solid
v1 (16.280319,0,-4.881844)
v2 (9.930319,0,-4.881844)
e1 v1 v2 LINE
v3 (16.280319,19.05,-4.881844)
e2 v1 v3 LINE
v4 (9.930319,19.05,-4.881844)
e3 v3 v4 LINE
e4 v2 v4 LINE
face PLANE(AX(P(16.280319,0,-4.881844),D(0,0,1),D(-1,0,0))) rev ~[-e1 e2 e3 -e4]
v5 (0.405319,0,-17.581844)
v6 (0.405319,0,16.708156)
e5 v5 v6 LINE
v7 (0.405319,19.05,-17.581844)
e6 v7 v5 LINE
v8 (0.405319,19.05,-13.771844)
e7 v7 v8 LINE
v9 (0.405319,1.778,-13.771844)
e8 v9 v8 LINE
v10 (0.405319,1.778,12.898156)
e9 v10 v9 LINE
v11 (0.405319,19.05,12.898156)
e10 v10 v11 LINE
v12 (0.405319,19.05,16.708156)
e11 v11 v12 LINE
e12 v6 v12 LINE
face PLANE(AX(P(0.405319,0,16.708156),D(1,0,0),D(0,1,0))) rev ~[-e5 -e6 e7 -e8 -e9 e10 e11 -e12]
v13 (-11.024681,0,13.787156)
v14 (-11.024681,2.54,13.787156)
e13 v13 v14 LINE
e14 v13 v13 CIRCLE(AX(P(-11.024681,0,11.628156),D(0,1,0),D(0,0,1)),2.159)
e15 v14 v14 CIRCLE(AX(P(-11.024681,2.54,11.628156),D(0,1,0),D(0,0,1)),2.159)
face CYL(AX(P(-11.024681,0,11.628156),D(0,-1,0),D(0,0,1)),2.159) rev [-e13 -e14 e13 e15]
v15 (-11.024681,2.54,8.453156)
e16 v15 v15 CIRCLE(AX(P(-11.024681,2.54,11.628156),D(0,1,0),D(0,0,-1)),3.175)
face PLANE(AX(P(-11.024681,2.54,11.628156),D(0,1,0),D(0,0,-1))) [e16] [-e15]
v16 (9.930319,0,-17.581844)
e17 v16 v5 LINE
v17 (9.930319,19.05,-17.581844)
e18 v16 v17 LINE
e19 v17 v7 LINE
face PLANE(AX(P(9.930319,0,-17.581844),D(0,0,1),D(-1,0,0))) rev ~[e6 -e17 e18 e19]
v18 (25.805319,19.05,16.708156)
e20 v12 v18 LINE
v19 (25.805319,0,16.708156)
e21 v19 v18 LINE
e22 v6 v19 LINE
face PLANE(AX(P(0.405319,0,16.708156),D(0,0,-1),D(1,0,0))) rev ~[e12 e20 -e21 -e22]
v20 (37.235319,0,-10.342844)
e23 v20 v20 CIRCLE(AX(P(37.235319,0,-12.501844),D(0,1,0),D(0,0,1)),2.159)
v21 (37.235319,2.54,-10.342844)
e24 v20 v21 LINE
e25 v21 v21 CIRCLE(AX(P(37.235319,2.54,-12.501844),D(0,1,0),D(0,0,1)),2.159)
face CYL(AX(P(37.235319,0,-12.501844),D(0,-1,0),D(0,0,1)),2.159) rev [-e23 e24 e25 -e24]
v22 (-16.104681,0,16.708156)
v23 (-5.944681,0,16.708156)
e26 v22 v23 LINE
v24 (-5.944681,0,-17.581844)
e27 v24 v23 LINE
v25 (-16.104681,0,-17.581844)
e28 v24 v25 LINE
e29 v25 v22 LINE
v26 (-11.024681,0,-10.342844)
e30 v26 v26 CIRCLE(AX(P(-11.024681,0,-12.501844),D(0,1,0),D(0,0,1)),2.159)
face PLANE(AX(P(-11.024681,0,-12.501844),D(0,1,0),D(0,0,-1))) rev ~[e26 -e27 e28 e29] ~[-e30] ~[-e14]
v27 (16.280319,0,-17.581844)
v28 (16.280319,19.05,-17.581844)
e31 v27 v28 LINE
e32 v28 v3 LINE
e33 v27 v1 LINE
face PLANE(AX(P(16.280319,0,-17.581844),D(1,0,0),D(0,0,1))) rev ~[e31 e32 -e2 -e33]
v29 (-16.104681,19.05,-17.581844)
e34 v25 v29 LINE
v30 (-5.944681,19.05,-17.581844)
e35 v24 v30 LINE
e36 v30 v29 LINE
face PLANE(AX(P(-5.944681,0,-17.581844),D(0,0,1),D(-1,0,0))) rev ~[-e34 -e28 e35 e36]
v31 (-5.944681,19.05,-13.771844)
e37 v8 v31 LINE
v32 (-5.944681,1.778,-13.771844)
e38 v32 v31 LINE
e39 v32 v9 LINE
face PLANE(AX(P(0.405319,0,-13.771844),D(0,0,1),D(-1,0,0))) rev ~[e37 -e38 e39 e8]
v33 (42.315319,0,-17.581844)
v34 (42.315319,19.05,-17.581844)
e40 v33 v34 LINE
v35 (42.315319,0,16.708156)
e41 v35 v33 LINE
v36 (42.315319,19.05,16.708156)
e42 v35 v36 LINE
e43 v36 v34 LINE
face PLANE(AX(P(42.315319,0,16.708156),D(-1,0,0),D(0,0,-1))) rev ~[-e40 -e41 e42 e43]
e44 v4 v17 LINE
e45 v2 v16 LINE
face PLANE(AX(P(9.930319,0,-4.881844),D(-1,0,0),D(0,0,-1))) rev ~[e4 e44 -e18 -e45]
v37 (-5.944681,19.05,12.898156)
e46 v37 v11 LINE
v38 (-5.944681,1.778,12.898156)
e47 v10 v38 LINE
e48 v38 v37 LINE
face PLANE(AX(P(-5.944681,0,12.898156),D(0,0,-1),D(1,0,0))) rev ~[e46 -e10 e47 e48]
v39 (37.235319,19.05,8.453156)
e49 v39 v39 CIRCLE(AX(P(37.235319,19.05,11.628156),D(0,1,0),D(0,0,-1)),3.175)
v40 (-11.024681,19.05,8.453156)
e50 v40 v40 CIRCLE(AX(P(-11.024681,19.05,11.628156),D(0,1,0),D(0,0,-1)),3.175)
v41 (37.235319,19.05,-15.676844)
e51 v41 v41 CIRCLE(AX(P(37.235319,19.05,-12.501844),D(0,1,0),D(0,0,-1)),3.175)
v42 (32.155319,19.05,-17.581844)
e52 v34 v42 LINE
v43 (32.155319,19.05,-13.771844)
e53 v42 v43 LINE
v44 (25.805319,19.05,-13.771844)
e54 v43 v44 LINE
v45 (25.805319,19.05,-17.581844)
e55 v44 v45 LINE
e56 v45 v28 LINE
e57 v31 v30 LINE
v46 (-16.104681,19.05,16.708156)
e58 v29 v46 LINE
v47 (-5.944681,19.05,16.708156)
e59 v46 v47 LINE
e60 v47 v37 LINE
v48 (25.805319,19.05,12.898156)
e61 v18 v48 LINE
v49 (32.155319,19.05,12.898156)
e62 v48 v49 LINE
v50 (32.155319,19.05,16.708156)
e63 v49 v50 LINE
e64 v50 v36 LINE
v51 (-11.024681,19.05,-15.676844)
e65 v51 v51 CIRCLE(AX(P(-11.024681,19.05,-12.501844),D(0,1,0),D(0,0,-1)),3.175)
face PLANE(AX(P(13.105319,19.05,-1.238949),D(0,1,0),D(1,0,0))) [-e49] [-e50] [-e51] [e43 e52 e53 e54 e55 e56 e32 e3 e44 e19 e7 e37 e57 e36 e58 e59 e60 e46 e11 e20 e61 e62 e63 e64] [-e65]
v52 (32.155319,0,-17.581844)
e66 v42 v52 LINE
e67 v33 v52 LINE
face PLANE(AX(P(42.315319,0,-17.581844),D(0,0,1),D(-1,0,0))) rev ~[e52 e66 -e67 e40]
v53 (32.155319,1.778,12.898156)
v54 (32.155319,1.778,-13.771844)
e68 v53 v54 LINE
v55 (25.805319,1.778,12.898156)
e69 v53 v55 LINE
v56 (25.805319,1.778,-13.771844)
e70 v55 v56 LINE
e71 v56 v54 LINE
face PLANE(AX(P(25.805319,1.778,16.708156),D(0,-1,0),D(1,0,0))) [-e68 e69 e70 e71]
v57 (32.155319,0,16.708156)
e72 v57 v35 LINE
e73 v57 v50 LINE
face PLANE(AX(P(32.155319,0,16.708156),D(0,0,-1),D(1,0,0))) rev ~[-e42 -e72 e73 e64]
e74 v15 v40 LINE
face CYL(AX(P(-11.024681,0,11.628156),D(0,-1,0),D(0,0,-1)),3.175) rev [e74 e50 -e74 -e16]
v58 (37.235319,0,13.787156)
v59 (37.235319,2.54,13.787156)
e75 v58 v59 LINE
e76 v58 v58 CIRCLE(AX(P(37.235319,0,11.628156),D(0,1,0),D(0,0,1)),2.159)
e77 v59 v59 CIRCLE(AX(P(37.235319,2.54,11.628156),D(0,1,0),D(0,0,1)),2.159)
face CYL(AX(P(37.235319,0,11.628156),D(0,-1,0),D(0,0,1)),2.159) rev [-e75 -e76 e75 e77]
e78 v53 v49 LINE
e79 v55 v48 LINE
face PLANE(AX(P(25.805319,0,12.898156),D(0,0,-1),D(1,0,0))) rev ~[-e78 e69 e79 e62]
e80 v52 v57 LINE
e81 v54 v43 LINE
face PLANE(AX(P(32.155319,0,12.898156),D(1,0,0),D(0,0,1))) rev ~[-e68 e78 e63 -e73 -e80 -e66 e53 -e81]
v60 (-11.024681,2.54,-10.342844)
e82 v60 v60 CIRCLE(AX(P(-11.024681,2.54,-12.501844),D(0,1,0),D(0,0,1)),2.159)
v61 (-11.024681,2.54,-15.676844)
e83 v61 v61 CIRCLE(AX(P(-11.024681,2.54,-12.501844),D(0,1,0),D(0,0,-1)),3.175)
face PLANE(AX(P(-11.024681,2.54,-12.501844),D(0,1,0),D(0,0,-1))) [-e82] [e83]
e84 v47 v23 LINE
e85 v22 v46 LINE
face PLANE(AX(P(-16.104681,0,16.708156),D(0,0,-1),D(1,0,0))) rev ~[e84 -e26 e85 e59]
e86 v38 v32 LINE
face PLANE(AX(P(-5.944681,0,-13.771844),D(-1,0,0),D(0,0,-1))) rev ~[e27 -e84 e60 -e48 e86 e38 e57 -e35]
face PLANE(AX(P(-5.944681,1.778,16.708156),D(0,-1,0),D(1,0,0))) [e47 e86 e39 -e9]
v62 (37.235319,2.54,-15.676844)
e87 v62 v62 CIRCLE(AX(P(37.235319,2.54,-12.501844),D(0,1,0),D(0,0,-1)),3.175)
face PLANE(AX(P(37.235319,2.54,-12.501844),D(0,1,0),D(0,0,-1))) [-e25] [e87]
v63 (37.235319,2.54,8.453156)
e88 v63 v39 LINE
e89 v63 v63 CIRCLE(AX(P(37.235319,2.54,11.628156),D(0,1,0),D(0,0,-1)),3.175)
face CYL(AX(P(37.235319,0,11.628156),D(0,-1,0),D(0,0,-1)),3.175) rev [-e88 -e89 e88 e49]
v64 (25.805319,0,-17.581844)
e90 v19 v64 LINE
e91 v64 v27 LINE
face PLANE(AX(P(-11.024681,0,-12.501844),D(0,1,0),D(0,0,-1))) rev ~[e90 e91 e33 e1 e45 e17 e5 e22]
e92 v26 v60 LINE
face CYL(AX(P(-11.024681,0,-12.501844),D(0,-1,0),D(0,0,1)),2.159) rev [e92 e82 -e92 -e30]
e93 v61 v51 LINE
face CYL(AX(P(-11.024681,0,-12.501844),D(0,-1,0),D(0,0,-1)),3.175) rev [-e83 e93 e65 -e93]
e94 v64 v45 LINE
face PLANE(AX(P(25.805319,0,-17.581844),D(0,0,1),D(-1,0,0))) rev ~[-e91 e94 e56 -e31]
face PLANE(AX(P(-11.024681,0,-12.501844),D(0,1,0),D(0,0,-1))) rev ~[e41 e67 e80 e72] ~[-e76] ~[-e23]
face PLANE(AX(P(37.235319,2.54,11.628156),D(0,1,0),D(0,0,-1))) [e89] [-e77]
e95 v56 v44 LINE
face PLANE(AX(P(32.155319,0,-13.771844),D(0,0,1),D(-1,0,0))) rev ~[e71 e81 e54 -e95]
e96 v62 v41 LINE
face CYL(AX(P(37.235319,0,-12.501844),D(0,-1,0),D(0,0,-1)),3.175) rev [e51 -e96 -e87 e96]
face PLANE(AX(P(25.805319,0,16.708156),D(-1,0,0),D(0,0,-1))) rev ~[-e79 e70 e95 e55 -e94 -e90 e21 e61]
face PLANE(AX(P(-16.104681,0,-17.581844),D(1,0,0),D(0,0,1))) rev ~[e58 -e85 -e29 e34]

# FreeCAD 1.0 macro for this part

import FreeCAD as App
import Part
import Sketcher
from FreeCAD import Vector
Q = App.Units.Quantity


def add_polygon(sketch, points):
    """Adds a closed chain of lines whose ends are joined by coincident constraints."""
    first, n = sketch.GeometryCount, len(points)
    for a, b in zip(points, points[1:] + points[:1]):
        sketch.addGeometry(Part.LineSegment(App.Vector(*a, 0), App.Vector(*b, 0)), False)
    for i in range(n):
        sketch.addConstraint(Sketcher.Constraint("Coincident", first + i, 2, first + (i + 1) % n, 1))

doc = App.newDocument("Part")
params = doc.addObject("Spreadsheet::Sheet", "Params")
for row, (alias, value) in enumerate([
    ("sketch1_diameter", "0.25 in"),
    ("sketch1_width", "1 in"),
    ("sketch1_width2", "0.4 in"),
    ("sketch1_height", "0.5 in"),
    ("sketch1_width3", "0.25 in"),
    ("pad1_length", "0.75 in"),
    ("sketch2_diameter", "0.25 in"),
    ("sketch2_diameter2", "0.17 in"),
    ("pad2_length", "0.1 in"),
    ("sketch3_width", "0.25 in"),
    ("sketch3_height", "0.07 in"),
], start=1):
    params.set(f"A{row}", alias)
    params.set(f"B{row}", "=" + value)
    params.setAlias(f"B{row}", alias)

body = doc.addObject("PartDesign::Body", "Body")

sketch1 = doc.addObject("Sketcher::SketchObject", "Sketch")
body.addObject(sketch1)
sketch1.AttachmentSupport = (doc.XZ_Plane, [""])
sketch1.MapMode = "FlatFace"
add_polygon(sketch1, [(-5.9, -17.6), (-16.1, -17.6), (-16.1, 16.7), (-5.9, 16.7), (-5.9, 12.9), (0.4, 12.9), (0.4, 16.7), (25.8, 16.7), (25.8, 12.9), (32.2, 12.9), (32.2, 16.7), (42.3, 16.7), (42.3, -17.6), (32.2, -17.6), (32.2, -13.8), (25.8, -13.8), (25.8, -17.6), (16.3, -17.6), (16.3, -4.9), (9.9, -4.9), (9.9, -17.6), (0.4, -17.6), (0.4, -13.8), (-5.9, -13.8)])
sketch1.addGeometry(Part.Circle(Vector(-11, 11.6, 0), Vector(0, 0, 1), 3.2), False)
sketch1.addGeometry(Part.Circle(Vector(37.2, 11.6, 0), Vector(0, 0, 1), 3.2), False)
sketch1.addGeometry(Part.Circle(Vector(-11, -12.5, 0), Vector(0, 0, 1), 3.2), False)
sketch1.addGeometry(Part.Circle(Vector(37.2, -12.5, 0), Vector(0, 0, 1), 3.2), False)
sketch1.addConstraint([
    Sketcher.Constraint("Horizontal", 0),
    Sketcher.Constraint("Vertical", 1),
    Sketcher.Constraint("Horizontal", 2),
    Sketcher.Constraint("Vertical", 3),
    Sketcher.Constraint("Horizontal", 4),
    Sketcher.Constraint("Vertical", 5),
    Sketcher.Constraint("Horizontal", 6),
    Sketcher.Constraint("Vertical", 7),
    Sketcher.Constraint("Horizontal", 8),
    Sketcher.Constraint("Vertical", 9),
    Sketcher.Constraint("Horizontal", 10),
    Sketcher.Constraint("Vertical", 11),
    Sketcher.Constraint("Horizontal", 12),
    Sketcher.Constraint("Vertical", 13),
    Sketcher.Constraint("Horizontal", 14),
    Sketcher.Constraint("Vertical", 15),
    Sketcher.Constraint("Horizontal", 16),
    Sketcher.Constraint("Vertical", 17),
    Sketcher.Constraint("Horizontal", 18),
    Sketcher.Constraint("Vertical", 19),
    Sketcher.Constraint("Horizontal", 20),
    Sketcher.Constraint("Vertical", 21),
    Sketcher.Constraint("Horizontal", 22),
    Sketcher.Constraint("Vertical", 23),
    Sketcher.Constraint("Equal", 24, 25),
    Sketcher.Constraint("Equal", 25, 26),
    Sketcher.Constraint("Equal", 26, 27),
    Sketcher.Constraint("Horizontal", 24, 3, 25, 3),
    Sketcher.Constraint("Horizontal", 26, 3, 27, 3),
    Sketcher.Constraint("Horizontal", 2, 2, 5, 2),
    Sketcher.Constraint("Horizontal", 4, 2, 7, 2),
    Sketcher.Constraint("Horizontal", 6, 2, 9, 2),
    Sketcher.Constraint("Horizontal", 0, 2, 11, 2),
    Sketcher.Constraint("Horizontal", 12, 2, 15, 2),
    Sketcher.Constraint("Horizontal", 16, 2, 19, 2),
    Sketcher.Constraint("Horizontal", 14, 2, 21, 2),
    Sketcher.Constraint("Vertical", 24, 3, 26, 3),
    Sketcher.Constraint("Vertical", 25, 3, 27, 3),
    Sketcher.Constraint("Vertical", 9, 2, 12, 2),
    Sketcher.Constraint("Vertical", 7, 2, 14, 2),
    Sketcher.Constraint("Vertical", 5, 2, 20, 2),
    Sketcher.Constraint("Vertical", 3, 2, 22, 2),
    Sketcher.Constraint("Equal", 4, 8),
    Sketcher.Constraint("Equal", 2, 10),
    Sketcher.Constraint("Equal", 14, 18),
    Sketcher.Constraint("Equal", 16, 20),
    Sketcher.Constraint("Equal", 9, 13),
    Sketcher.Constraint("Diameter", 24, Q("0.25 in")),
    Sketcher.Constraint("DistanceX", 6, 1, 6, 2, Q("1 in")),
    Sketcher.Constraint("DistanceX", 0, 2, 0, 1, Q("0.4 in")),
    Sketcher.Constraint("DistanceY", 17, 1, 17, 2, Q("0.5 in")),
    Sketcher.Constraint("DistanceY", 26, 3, 3, 2, Q("1 in")),
    Sketcher.Constraint("DistanceY", 13, 2, 25, 3, Q("1 in")),
    Sketcher.Constraint("DistanceX", 4, 1, 4, 2, Q("0.25 in")),
    Sketcher.Constraint("DistanceY", 1, 1, 1, 2, Q("1.35 in")),
    Sketcher.Constraint("DistanceY", 3, 2, 3, 1, Q("0.15 in")),
    Sketcher.Constraint("DistanceX", 24, 3, 25, 3, Q("1.9 in")),
    Sketcher.Constraint("DistanceX", 0, 2, 26, 3, Q("0.2 in")),
    Sketcher.Constraint("DistanceX", 24, 3, -1, 1, 11.024681),
    Sketcher.Constraint("DistanceY", -1, 1, 24, 3, 11.628156),
])
sketch1.setExpression("Constraints[71]", "Params.sketch1_diameter")
sketch1.setExpression("Constraints[72]", "Params.sketch1_width")
sketch1.setExpression("Constraints[73]", "Params.sketch1_width2")
sketch1.setExpression("Constraints[74]", "Params.sketch1_height")
sketch1.setExpression("Constraints[77]", "Params.sketch1_width3")
pad1 = doc.addObject("PartDesign::Pad", "Pad")
body.addObject(pad1)
pad1.Profile = sketch1
pad1.setExpression("Length", "Params.pad1_length")
pad1.Reversed = True

sketch2 = doc.addObject("Sketcher::SketchObject", "Sketch001")
body.addObject(sketch2)
sketch2.AttachmentSupport = (doc.XZ_Plane, [""])
sketch2.MapMode = "FlatFace"
sketch2.addGeometry([
    Part.Circle(Vector(-11, -12.5, 0), Vector(0, 0, 1), 3.2),
    Part.Circle(Vector(-11, -12.5, 0), Vector(0, 0, 1), 2.2),
    Part.Circle(Vector(-11, 11.6, 0), Vector(0, 0, 1), 3.2),
    Part.Circle(Vector(-11, 11.6, 0), Vector(0, 0, 1), 2.2),
    Part.Circle(Vector(37.2, -12.5, 0), Vector(0, 0, 1), 3.2),
    Part.Circle(Vector(37.2, -12.5, 0), Vector(0, 0, 1), 2.2),
    Part.Circle(Vector(37.2, 11.6, 0), Vector(0, 0, 1), 3.2),
    Part.Circle(Vector(37.2, 11.6, 0), Vector(0, 0, 1), 2.2),
], False)
sketch2.addConstraint([
    Sketcher.Constraint("Coincident", 1, 3, 0, 3),
    Sketcher.Constraint("Coincident", 3, 3, 2, 3),
    Sketcher.Constraint("Coincident", 5, 3, 4, 3),
    Sketcher.Constraint("Coincident", 7, 3, 6, 3),
    Sketcher.Constraint("Equal", 0, 2),
    Sketcher.Constraint("Equal", 1, 3),
    Sketcher.Constraint("Equal", 2, 4),
    Sketcher.Constraint("Equal", 3, 5),
    Sketcher.Constraint("Equal", 4, 6),
    Sketcher.Constraint("Equal", 5, 7),
    Sketcher.Constraint("Horizontal", 1, 3, 4, 3),
    Sketcher.Constraint("Horizontal", 3, 3, 6, 3),
    Sketcher.Constraint("Vertical", 1, 3, 2, 3),
    Sketcher.Constraint("Vertical", 5, 3, 6, 3),
    Sketcher.Constraint("Diameter", 0, Q("0.25 in")),
    Sketcher.Constraint("Diameter", 1, Q("0.17 in")),
    Sketcher.Constraint("DistanceX", 0, 3, 4, 3, Q("1.9 in")),
    Sketcher.Constraint("DistanceY", 0, 3, 2, 3, Q("0.95 in")),
    Sketcher.Constraint("DistanceX", 0, 3, -1, 1, 11.024681),
    Sketcher.Constraint("DistanceY", 0, 3, -1, 1, 12.501844),
])
sketch2.setExpression("Constraints[14]", "Params.sketch2_diameter")
sketch2.setExpression("Constraints[15]", "Params.sketch2_diameter2")
pad2 = doc.addObject("PartDesign::Pad", "Pad001")
body.addObject(pad2)
pad2.Profile = sketch2
pad2.setExpression("Length", "Params.pad2_length")
pad2.Reversed = True

sketch3 = doc.addObject("Sketcher::SketchObject", "Sketch002")
body.addObject(sketch3)
sketch3.AttachmentSupport = (doc.XY_Plane, [""])
sketch3.MapMode = "FlatFace"
sketch3.AttachmentOffset = App.Placement(Vector(0, 0, 16.708156), App.Rotation())
add_polygon(sketch3, [(-5.9, 1.8), (-5.9, 0), (0.4, 0), (0.4, 1.8)])
add_polygon(sketch3, [(25.8, 1.8), (25.8, 0), (32.2, 0), (32.2, 1.8)])
sketch3.addConstraint([
    Sketcher.Constraint("Vertical", 0),
    Sketcher.Constraint("Horizontal", 1),
    Sketcher.Constraint("Vertical", 2),
    Sketcher.Constraint("Horizontal", 3),
    Sketcher.Constraint("Vertical", 4),
    Sketcher.Constraint("Horizontal", 5),
    Sketcher.Constraint("Vertical", 6),
    Sketcher.Constraint("Horizontal", 7),
    Sketcher.Constraint("PointOnObject", 0, 2, -1),
    Sketcher.Constraint("PointOnObject", 4, 2, -1),
    Sketcher.Constraint("Horizontal", 3, 2, 6, 2),
    Sketcher.Constraint("Equal", 3, 5),
    Sketcher.Constraint("DistanceX", 1, 2, 4, 2, Q("1 in")),
    Sketcher.Constraint("DistanceX", 1, 1, 1, 2, Q("0.25 in")),
    Sketcher.Constraint("DistanceY", 0, 2, 0, 1, Q("0.07 in")),
    Sketcher.Constraint("DistanceX", 0, 2, -1, 1, 5.944681),
])
sketch3.setExpression("Constraints[21]", "Params.sketch3_width")
sketch3.setExpression("Constraints[22]", "Params.sketch3_height")
pocket1 = doc.addObject("PartDesign::Pocket", "Pocket")
body.addObject(pocket1)
pocket1.Profile = sketch3
pocket1.Type = "ThroughAll"

doc.recompute()
